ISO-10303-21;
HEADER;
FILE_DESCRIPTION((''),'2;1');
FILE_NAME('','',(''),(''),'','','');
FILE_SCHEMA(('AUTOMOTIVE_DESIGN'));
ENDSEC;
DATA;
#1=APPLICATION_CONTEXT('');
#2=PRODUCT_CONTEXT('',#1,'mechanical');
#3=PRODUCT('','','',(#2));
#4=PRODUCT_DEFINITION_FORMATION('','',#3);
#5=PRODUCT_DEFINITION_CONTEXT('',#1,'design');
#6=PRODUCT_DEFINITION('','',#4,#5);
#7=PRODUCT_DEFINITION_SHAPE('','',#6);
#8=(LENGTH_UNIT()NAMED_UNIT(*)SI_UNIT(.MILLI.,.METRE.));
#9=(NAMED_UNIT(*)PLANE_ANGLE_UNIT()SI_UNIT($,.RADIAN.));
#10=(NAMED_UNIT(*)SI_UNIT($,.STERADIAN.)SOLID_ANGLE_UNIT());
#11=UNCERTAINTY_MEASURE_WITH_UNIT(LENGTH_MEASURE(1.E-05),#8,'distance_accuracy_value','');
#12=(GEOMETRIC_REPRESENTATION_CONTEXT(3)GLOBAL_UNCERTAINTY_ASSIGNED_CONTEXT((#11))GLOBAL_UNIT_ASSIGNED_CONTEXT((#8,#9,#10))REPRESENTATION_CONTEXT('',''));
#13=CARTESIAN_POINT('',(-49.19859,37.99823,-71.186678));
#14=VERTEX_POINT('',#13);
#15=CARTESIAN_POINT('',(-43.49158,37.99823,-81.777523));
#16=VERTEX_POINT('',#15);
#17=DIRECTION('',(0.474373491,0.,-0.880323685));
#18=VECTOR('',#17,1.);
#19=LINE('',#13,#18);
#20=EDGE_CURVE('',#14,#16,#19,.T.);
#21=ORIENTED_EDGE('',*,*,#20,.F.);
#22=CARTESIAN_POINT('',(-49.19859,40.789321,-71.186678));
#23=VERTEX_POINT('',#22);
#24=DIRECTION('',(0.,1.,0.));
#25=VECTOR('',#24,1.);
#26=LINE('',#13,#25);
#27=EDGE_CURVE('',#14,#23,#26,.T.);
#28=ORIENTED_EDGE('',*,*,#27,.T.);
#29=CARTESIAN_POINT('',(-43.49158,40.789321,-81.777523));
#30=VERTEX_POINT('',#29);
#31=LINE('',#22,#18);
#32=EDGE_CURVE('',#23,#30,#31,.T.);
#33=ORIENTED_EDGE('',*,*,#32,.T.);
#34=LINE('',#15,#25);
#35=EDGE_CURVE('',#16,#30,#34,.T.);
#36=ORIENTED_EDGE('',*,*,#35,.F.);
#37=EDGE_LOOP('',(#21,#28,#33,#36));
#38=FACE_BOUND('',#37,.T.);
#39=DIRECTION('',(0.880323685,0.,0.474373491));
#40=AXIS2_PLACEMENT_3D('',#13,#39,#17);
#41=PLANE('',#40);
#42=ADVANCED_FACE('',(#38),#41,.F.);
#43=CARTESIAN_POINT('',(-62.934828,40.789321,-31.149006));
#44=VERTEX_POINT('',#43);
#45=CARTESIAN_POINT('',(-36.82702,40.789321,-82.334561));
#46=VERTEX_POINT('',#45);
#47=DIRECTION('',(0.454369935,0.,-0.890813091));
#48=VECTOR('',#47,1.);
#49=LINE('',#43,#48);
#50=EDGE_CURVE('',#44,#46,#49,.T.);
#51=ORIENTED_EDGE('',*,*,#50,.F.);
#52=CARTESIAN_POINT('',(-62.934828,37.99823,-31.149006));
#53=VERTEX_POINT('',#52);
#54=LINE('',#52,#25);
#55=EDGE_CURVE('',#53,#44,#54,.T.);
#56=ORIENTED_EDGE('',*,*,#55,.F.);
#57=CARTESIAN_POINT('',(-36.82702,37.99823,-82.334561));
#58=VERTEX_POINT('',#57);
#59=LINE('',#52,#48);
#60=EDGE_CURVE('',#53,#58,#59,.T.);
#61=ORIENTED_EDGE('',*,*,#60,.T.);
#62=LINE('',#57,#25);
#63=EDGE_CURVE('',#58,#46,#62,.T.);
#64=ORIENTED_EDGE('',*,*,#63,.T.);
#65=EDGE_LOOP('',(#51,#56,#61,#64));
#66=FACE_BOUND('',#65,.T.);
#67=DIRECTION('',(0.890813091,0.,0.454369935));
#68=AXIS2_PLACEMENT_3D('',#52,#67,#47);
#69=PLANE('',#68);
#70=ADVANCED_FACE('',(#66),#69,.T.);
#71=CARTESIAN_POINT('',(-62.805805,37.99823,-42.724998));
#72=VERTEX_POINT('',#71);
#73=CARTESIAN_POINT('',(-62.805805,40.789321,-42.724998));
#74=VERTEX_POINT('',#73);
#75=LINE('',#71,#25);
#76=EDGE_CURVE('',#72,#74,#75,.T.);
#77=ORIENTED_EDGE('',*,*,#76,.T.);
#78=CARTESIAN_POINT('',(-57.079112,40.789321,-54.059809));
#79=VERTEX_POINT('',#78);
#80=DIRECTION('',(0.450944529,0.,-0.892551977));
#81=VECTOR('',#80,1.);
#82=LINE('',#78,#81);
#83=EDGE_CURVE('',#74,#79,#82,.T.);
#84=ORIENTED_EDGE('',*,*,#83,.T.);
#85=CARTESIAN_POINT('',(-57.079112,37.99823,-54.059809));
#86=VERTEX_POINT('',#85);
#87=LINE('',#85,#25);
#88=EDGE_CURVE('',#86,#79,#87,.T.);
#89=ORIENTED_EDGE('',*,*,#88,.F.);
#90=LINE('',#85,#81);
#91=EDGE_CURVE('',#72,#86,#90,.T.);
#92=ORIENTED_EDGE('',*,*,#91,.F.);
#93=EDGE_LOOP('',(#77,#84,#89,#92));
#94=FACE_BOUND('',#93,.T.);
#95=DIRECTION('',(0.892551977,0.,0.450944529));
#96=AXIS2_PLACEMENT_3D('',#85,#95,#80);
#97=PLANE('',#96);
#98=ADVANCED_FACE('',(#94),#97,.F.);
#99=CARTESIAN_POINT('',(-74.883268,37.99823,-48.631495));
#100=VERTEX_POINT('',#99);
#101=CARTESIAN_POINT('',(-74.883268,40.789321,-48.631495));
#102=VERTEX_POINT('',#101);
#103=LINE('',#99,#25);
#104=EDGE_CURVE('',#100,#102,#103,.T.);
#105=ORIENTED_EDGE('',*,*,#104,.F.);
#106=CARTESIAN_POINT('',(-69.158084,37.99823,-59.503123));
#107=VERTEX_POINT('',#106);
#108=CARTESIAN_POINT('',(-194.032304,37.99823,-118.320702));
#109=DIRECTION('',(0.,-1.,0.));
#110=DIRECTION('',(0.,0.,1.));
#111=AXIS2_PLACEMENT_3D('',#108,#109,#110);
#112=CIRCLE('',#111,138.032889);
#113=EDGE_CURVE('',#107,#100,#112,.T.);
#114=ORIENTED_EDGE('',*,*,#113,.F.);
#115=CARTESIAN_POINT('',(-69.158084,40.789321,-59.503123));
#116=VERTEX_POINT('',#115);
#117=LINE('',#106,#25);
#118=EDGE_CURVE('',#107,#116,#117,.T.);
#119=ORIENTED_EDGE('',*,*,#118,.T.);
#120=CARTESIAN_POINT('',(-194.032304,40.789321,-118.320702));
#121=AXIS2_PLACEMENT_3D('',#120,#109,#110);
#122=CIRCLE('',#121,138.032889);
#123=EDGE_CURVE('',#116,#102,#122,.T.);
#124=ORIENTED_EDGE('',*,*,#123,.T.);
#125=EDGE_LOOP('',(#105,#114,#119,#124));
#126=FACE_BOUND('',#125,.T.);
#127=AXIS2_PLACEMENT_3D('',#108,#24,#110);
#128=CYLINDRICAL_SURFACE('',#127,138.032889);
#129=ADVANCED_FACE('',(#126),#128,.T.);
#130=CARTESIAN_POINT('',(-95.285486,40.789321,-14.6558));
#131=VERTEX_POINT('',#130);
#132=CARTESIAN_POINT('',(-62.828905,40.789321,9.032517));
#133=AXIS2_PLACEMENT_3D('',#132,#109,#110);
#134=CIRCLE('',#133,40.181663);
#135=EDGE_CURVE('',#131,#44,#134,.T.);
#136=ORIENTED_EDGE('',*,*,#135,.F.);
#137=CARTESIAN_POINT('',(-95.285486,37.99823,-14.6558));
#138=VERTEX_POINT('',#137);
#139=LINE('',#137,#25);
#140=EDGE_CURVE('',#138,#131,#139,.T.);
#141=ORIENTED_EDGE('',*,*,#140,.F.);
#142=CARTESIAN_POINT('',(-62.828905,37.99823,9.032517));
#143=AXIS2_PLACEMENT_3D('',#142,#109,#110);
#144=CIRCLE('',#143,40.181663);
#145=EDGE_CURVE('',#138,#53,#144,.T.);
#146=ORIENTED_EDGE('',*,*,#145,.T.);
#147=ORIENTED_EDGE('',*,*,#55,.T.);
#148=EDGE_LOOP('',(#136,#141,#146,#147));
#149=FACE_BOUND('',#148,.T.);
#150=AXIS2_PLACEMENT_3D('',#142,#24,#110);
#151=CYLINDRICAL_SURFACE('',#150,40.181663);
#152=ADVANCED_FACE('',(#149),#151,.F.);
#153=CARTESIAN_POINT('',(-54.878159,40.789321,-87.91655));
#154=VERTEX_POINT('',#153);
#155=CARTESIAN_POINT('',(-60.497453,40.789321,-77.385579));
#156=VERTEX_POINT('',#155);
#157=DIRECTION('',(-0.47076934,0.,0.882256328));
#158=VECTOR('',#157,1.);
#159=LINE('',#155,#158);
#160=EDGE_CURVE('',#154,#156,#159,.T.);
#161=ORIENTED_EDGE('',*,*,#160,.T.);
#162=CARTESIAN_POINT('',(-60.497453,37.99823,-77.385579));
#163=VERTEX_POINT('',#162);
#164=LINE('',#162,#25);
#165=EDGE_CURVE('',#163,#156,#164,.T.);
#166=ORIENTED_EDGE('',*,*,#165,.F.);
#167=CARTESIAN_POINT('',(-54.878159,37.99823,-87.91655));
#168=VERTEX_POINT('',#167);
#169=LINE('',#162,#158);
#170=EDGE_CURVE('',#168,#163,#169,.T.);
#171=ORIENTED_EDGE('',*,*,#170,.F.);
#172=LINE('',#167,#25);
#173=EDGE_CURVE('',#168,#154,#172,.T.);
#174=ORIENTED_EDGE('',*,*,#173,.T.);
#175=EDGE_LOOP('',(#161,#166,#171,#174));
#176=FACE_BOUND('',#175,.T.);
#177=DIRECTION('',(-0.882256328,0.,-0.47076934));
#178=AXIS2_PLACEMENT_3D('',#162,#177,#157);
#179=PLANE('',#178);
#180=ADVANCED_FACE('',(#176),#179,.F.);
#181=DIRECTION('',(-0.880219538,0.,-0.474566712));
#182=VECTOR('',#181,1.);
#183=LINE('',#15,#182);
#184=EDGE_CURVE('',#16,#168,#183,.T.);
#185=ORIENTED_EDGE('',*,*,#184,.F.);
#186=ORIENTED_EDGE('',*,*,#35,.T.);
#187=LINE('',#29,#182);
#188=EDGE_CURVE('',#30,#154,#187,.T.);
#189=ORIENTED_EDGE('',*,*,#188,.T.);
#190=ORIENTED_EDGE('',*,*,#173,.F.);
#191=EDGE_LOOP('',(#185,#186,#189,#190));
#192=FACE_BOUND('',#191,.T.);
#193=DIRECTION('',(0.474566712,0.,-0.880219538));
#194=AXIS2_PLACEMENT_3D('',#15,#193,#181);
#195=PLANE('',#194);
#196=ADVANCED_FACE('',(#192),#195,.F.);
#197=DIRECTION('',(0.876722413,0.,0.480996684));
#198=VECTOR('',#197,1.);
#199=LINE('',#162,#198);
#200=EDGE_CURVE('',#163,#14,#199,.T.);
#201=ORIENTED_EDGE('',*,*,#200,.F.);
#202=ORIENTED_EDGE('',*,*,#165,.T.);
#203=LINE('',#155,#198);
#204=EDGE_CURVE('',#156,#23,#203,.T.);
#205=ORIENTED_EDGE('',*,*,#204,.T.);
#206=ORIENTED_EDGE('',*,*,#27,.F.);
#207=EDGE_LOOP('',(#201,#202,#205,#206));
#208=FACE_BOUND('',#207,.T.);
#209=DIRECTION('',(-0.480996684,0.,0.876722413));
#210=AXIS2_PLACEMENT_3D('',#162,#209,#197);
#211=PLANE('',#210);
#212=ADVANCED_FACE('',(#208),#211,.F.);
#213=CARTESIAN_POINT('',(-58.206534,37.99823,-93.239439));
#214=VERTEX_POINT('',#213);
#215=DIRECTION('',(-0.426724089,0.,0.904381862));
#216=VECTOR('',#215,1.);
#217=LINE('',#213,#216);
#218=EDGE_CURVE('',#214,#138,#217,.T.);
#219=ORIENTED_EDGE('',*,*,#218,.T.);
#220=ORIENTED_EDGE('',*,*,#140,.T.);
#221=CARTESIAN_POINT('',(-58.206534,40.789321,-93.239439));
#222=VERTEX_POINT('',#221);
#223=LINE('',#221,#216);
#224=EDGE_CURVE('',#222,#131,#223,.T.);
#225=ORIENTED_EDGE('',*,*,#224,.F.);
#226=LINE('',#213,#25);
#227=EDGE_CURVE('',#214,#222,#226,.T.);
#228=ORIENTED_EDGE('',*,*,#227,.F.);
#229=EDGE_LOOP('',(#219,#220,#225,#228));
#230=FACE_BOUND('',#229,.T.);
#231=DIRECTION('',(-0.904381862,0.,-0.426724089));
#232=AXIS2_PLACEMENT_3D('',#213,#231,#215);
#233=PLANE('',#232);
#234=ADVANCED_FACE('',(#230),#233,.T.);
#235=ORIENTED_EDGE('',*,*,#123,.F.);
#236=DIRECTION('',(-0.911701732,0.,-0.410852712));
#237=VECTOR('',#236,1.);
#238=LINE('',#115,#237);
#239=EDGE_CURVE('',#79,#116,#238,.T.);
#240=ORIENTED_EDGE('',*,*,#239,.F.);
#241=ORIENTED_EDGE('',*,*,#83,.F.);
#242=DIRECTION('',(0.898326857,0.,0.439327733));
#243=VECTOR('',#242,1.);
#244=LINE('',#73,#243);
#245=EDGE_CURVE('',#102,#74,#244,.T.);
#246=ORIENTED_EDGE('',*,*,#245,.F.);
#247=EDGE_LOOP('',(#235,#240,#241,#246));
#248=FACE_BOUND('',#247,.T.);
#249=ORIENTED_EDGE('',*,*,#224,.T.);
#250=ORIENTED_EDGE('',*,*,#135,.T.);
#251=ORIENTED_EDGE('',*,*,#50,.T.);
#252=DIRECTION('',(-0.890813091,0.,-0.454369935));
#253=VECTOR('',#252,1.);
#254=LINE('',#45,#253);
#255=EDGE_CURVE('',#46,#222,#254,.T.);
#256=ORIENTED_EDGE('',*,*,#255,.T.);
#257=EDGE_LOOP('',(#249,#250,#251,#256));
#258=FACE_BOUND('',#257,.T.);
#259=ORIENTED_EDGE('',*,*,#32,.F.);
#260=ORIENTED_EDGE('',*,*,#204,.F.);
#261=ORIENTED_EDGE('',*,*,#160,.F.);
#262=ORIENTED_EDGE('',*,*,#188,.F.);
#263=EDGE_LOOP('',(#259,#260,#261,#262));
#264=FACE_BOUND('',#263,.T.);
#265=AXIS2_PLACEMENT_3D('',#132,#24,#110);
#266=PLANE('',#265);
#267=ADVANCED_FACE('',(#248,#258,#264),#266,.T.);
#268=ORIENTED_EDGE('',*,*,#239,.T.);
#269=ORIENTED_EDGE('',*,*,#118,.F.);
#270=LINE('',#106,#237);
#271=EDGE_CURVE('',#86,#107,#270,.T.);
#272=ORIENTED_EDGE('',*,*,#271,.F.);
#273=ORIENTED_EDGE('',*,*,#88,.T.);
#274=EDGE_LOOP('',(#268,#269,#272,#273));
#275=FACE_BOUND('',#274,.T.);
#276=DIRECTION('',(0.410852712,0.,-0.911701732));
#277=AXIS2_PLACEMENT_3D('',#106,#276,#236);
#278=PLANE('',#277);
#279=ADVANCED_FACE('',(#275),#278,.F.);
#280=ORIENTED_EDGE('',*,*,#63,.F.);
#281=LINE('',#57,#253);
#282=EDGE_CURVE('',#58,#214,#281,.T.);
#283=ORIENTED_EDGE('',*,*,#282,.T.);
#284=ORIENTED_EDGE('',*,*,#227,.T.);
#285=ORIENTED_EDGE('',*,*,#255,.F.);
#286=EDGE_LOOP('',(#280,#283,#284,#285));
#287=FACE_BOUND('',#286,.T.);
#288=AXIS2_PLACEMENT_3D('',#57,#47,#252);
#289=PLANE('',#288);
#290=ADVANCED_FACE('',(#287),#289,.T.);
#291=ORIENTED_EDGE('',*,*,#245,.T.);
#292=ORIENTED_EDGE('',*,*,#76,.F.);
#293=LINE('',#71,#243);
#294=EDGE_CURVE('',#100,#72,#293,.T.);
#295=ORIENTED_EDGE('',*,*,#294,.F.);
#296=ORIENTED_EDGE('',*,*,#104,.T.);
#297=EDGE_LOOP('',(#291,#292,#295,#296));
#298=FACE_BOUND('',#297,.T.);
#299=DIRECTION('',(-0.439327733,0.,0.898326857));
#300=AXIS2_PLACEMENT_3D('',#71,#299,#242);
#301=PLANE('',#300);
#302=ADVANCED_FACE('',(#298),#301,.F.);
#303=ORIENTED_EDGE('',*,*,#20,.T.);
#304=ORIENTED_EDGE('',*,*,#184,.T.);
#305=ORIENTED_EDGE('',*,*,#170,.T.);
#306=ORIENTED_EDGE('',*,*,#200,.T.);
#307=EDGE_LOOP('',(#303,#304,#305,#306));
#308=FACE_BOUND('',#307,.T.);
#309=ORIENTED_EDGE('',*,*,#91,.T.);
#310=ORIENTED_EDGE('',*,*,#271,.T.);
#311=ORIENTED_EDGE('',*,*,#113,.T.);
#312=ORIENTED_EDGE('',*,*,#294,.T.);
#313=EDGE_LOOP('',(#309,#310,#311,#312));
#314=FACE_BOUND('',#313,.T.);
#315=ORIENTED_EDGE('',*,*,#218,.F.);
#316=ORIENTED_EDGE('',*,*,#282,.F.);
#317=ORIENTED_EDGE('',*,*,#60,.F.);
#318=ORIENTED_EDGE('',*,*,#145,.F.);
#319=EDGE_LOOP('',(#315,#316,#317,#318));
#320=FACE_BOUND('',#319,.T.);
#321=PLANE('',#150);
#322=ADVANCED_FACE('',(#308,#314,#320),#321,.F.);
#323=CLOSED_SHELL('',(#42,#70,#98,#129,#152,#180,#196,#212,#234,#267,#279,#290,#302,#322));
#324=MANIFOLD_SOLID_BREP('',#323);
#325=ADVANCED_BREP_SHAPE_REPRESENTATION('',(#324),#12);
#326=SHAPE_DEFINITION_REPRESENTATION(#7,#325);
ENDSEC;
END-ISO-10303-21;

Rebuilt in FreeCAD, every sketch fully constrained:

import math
import FreeCAD as App
import Part
import Sketcher
from FreeCAD import Vector
Q = App.Units.Quantity


def add_polygon(sketch, points):
    """Adds a closed chain of lines whose ends are joined by coincident constraints."""
    first, n = sketch.GeometryCount, len(points)
    for a, b in zip(points, points[1:] + points[:1]):
        sketch.addGeometry(Part.LineSegment(App.Vector(*a, 0), App.Vector(*b, 0)), False)
    for i in range(n):
        sketch.addConstraint(Sketcher.Constraint("Coincident", first + i, 2, first + (i + 1) % n, 1))

doc = App.newDocument("Part")
body = doc.addObject("PartDesign::Body", "Body")

sketch1 = doc.addObject("Sketcher::SketchObject", "Sketch")
body.addObject(sketch1)
sketch1.AttachmentSupport = (doc.XZ_Plane, [""])
sketch1.MapMode = "FlatFace"
sketch1.AttachmentOffset = App.Placement(Vector(0, 0, -39.789321), App.Rotation())
sketch1.addGeometry([
    Part.LineSegment(Vector(-63, -31, 0), Vector(-37, -82, 0)),
    Part.LineSegment(Vector(-37, -82, 0), Vector(-58, -93, 0)),
    Part.LineSegment(Vector(-58, -93, 0), Vector(-95, -15, 0)),
    Part.ArcOfCircle(Part.Circle(Vector(-63, 9, 0), Vector(0, 0, 1), 40), math.radians(-144), math.radians(-90)),
], False)
sketch1.addConstraint([
    Sketcher.Constraint("Coincident", 0, 2, 1, 1),
    Sketcher.Constraint("Coincident", 1, 2, 2, 1),
    Sketcher.Constraint("Coincident", 2, 2, 3, 1),
    Sketcher.Constraint("Coincident", 3, 2, 0, 1),
    Sketcher.Constraint("Perpendicular", 0, 1),
    Sketcher.Constraint("Distance", 1, Q("24 mm")),
    Sketcher.Constraint("Radius", 3, Q("40.181663 mm")),
    Sketcher.Constraint("Distance", 2, Q("86.8921 mm")),
    Sketcher.Constraint("DistanceY", 2, 2, -1, 1, Q("14.6558 mm")),
    Sketcher.Constraint("DistanceX", 0, 2, -1, 1, Q("36.82702 mm")),
    Sketcher.Constraint("DistanceY", 0, 2, -1, 1, Q("82.334561 mm")),
    Sketcher.Constraint("DistanceY", 1, 2, -1, 1, Q("93.239439 mm")),
    Sketcher.Constraint("DistanceX", 3, 3, 1, 2, Q("4.622371 mm")),
])
pad1 = doc.addObject("PartDesign::Pad", "Pad")
body.addObject(pad1)
pad1.Profile = sketch1
pad1.Type = "TwoLengths"
pad1.Length = 1
pad1.Length2 = 1.791092
pad1.Reversed = True

sketch2 = doc.addObject("Sketcher::SketchObject", "Sketch001")
body.addObject(sketch2)
sketch2.AttachmentSupport = (doc.XZ_Plane, [""])
sketch2.MapMode = "FlatFace"
sketch2.AttachmentOffset = App.Placement(Vector(0, 0, -40.789321), App.Rotation())
add_polygon(sketch2, [(-60, -77), (-49, -71), (-43, -82), (-55, -88)])
sketch2.addConstraint([
    Sketcher.Constraint("DistanceY", 3, 2, 0, 2, Q("6.198901 mm")),
    Sketcher.Constraint("DistanceX", 0, 2, -1, 1, Q("49.19859 mm")),
    Sketcher.Constraint("DistanceX", 1, 2, -1, 1, Q("43.49158 mm")),
    Sketcher.Constraint("DistanceX", 2, 2, -1, 1, Q("54.878159 mm")),
    Sketcher.Constraint("DistanceY", 2, 2, -1, 1, Q("87.91655 mm")),
    Sketcher.Constraint("DistanceY", 3, 2, -1, 1, Q("77.385579 mm")),
    Sketcher.Constraint("Distance", 0, Q("12.887617 mm")),
    Sketcher.Constraint("Distance", 1, Q("12.030626 mm")),
])
pocket1 = doc.addObject("PartDesign::Pocket", "Pocket")
body.addObject(pocket1)
pocket1.Profile = sketch2
pocket1.Type = "ThroughAll"
pocket1.Reversed = True

sketch3 = doc.addObject("Sketcher::SketchObject", "Sketch002")
body.addObject(sketch3)
sketch3.AttachmentSupport = (doc.XZ_Plane, [""])
sketch3.MapMode = "FlatFace"
sketch3.AttachmentOffset = App.Placement(Vector(0, 0, -40.789321), App.Rotation())
sketch3.addGeometry([
    Part.LineSegment(Vector(-57, -54, 0), Vector(-69, -60, 0)),
    Part.ArcOfCircle(Part.Circle(Vector(-194, -118, 0), Vector(0, 0, 1), 138), math.radians(25.22), math.radians(30.32)),
    Part.LineSegment(Vector(-75, -49, 0), Vector(-63, -43, 0)),
    Part.LineSegment(Vector(-63, -43, 0), Vector(-57, -54, 0)),
], False)
sketch3.addConstraint([
    Sketcher.Constraint("Coincident", 0, 2, 1, 1),
    Sketcher.Constraint("Coincident", 1, 2, 2, 1),
    Sketcher.Constraint("Coincident", 2, 2, 3, 1),
    Sketcher.Constraint("Coincident", 3, 2, 0, 1),
    Sketcher.Constraint("Radius", 1, Q("138.032889 mm")),
    Sketcher.Constraint("DistanceY", 1, 3, -1, 1, Q("118.320702 mm")),
    Sketcher.Constraint("DistanceX", 1, 3, 2, 2, Q("131.226499 mm")),
    Sketcher.Constraint("Distance", 0, Q("13.24882 mm")),
    Sketcher.Constraint("Distance", 3, Q("12.699329 mm")),
    Sketcher.Constraint("DistanceX", 1, 2, -1, 1, Q("74.883268 mm")),
    Sketcher.Constraint("DistanceX", 3, 2, -1, 1, Q("57.079112 mm")),
    Sketcher.Constraint("DistanceY", 3, 2, -1, 1, Q("54.059809 mm")),
    Sketcher.Constraint("DistanceX", 1, 3, 0, 2, Q("124.87422 mm")),
])
pocket2 = doc.addObject("PartDesign::Pocket", "Pocket001")
body.addObject(pocket2)
pocket2.Profile = sketch3
pocket2.Type = "ThroughAll"
pocket2.Reversed = True

doc.recompute()
